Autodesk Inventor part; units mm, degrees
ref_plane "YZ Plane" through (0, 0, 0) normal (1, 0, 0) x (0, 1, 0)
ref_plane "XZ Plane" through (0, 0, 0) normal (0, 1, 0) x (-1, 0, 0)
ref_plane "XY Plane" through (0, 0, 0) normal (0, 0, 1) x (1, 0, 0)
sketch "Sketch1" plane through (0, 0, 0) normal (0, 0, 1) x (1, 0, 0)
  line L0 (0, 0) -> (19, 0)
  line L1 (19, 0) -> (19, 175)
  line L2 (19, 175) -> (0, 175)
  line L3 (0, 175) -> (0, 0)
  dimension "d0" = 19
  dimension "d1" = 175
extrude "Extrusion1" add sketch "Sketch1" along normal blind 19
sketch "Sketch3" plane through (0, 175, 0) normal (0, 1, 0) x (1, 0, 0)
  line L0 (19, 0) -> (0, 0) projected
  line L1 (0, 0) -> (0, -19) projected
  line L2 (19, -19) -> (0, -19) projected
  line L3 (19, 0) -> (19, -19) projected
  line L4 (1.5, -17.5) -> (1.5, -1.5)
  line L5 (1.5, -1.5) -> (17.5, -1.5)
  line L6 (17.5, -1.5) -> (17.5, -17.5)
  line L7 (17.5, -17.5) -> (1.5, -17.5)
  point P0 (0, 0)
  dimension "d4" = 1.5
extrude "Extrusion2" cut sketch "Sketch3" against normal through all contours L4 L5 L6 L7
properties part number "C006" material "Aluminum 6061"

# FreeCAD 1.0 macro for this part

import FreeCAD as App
import Part
import Sketcher

V = App.Vector
Q = App.Units.Quantity


def add_polygon(sketch, points):
    """Adds a closed chain of lines whose ends are joined by coincident constraints."""
    first, n = sketch.GeometryCount, len(points)
    for a, b in zip(points, points[1:] + points[:1]):
        sketch.addGeometry(Part.LineSegment(App.Vector(*a, 0), App.Vector(*b, 0)), False)
    for i in range(n):
        sketch.addConstraint(Sketcher.Constraint("Coincident", first + i, 2, first + (i + 1) % n, 1))

doc = App.newDocument("Part")
body = doc.addObject("PartDesign::Body", "Body")

# Sketch on XY plane
sketch1 = body.newObject("Sketcher::SketchObject", "Sketch")
sketch1.AttachmentSupport = (doc.getObject("XY_Plane"), [""])
sketch1.MapMode = "FlatFace"
add_polygon(sketch1, [(0, 175), (0, 0), (19, 0), (19, 175)])  # lines 0-3
sketch1.addConstraint([
    Sketcher.Constraint("Vertical", 0),
    Sketcher.Constraint("Horizontal", 1),
    Sketcher.Constraint("Vertical", 2),
    Sketcher.Constraint("Horizontal", 3),
    Sketcher.Constraint("Coincident", 0, 2, -1, 1),
    Sketcher.Constraint("DistanceX", 1, 1, 1, 2, Q("19 mm")),
    Sketcher.Constraint("DistanceY", 0, 2, 0, 1, Q("175 mm")),
])
pad1 = body.newObject("PartDesign::Pad", "Pad")
pad1.Profile = sketch1
pad1.Length = 19

# Sketch on XZ plane
sketch2 = body.newObject("Sketcher::SketchObject", "Sketch001")
sketch2.AttachmentSupport = (doc.getObject("XZ_Plane"), [""])
sketch2.MapMode = "FlatFace"
sketch2.AttachmentOffset = App.Placement(V(0, 0, -175), App.Rotation())
add_polygon(sketch2, [(2, 2), (2, 18), (18, 18), (18, 2)])  # lines 0-3
sketch2.addConstraint([
    Sketcher.Constraint("Vertical", 0),
    Sketcher.Constraint("Horizontal", 1),
    Sketcher.Constraint("Vertical", 2),
    Sketcher.Constraint("Horizontal", 3),
    Sketcher.Constraint("Equal", 3, 0),
    Sketcher.Constraint("DistanceX", -1, 1, 0, 2, Q("1.5 mm")),
    Sketcher.Constraint("DistanceY", -1, 1, 2, 2, Q("1.5 mm")),
    Sketcher.Constraint("DistanceX", 1, 1, 1, 2, Q("16 mm")),
])
pocket1 = body.newObject("PartDesign::Pocket", "Pocket")
pocket1.Profile = sketch2
pocket1.Type = "ThroughAll"
pocket1.Reversed = True

doc.recompute()
